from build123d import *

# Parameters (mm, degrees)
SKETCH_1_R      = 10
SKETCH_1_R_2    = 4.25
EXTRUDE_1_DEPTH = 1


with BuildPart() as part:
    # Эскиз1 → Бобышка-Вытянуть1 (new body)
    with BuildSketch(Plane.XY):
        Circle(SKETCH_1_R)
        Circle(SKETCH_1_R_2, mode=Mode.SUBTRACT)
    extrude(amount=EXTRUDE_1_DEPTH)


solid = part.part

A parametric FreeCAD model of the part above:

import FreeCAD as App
import Part
import Sketcher
Q = App.Units.Quantity

doc = App.newDocument("Part")
params = doc.addObject("Spreadsheet::Sheet", "Params")
for row, (alias, value) in enumerate([
    ("sketch1_diameter", "20 mm"),
    ("sketch1_diameter2", "8.5 mm"),
    ("pad1_length", "1 mm"),
], start=1):
    params.set(f"A{row}", alias)
    params.set(f"B{row}", "=" + value)
    params.setAlias(f"B{row}", alias)

body = doc.addObject("PartDesign::Body", "Body")

sketch1 = body.newObject("Sketcher::SketchObject", "Sketch")
sketch1.AttachmentSupport = (doc.getObject("XY_Plane"), [""])
sketch1.MapMode = "FlatFace"
sketch1.addGeometry([
    Part.Circle(App.Vector(0, 0, 0), App.Vector(0, 0, 1), 10),
    Part.Circle(App.Vector(0, 0, 0), App.Vector(0, 0, 1), 4.2),
], False)
sketch1.addConstraint([
    Sketcher.Constraint("Coincident", 0, 3, -1, 1),
    Sketcher.Constraint("Coincident", 1, 3, -1, 1),
    Sketcher.Constraint("Diameter", 0, Q("20 mm")),
    Sketcher.Constraint("Diameter", 1, Q("8.5 mm")),
])
sketch1.setExpression("Constraints[2]", "Params.sketch1_diameter")
sketch1.setExpression("Constraints[3]", "Params.sketch1_diameter2")
pad1 = body.newObject("PartDesign::Pad", "Pad")
pad1.Profile = sketch1
pad1.setExpression("Length", "Params.pad1_length")

doc.recompute()
